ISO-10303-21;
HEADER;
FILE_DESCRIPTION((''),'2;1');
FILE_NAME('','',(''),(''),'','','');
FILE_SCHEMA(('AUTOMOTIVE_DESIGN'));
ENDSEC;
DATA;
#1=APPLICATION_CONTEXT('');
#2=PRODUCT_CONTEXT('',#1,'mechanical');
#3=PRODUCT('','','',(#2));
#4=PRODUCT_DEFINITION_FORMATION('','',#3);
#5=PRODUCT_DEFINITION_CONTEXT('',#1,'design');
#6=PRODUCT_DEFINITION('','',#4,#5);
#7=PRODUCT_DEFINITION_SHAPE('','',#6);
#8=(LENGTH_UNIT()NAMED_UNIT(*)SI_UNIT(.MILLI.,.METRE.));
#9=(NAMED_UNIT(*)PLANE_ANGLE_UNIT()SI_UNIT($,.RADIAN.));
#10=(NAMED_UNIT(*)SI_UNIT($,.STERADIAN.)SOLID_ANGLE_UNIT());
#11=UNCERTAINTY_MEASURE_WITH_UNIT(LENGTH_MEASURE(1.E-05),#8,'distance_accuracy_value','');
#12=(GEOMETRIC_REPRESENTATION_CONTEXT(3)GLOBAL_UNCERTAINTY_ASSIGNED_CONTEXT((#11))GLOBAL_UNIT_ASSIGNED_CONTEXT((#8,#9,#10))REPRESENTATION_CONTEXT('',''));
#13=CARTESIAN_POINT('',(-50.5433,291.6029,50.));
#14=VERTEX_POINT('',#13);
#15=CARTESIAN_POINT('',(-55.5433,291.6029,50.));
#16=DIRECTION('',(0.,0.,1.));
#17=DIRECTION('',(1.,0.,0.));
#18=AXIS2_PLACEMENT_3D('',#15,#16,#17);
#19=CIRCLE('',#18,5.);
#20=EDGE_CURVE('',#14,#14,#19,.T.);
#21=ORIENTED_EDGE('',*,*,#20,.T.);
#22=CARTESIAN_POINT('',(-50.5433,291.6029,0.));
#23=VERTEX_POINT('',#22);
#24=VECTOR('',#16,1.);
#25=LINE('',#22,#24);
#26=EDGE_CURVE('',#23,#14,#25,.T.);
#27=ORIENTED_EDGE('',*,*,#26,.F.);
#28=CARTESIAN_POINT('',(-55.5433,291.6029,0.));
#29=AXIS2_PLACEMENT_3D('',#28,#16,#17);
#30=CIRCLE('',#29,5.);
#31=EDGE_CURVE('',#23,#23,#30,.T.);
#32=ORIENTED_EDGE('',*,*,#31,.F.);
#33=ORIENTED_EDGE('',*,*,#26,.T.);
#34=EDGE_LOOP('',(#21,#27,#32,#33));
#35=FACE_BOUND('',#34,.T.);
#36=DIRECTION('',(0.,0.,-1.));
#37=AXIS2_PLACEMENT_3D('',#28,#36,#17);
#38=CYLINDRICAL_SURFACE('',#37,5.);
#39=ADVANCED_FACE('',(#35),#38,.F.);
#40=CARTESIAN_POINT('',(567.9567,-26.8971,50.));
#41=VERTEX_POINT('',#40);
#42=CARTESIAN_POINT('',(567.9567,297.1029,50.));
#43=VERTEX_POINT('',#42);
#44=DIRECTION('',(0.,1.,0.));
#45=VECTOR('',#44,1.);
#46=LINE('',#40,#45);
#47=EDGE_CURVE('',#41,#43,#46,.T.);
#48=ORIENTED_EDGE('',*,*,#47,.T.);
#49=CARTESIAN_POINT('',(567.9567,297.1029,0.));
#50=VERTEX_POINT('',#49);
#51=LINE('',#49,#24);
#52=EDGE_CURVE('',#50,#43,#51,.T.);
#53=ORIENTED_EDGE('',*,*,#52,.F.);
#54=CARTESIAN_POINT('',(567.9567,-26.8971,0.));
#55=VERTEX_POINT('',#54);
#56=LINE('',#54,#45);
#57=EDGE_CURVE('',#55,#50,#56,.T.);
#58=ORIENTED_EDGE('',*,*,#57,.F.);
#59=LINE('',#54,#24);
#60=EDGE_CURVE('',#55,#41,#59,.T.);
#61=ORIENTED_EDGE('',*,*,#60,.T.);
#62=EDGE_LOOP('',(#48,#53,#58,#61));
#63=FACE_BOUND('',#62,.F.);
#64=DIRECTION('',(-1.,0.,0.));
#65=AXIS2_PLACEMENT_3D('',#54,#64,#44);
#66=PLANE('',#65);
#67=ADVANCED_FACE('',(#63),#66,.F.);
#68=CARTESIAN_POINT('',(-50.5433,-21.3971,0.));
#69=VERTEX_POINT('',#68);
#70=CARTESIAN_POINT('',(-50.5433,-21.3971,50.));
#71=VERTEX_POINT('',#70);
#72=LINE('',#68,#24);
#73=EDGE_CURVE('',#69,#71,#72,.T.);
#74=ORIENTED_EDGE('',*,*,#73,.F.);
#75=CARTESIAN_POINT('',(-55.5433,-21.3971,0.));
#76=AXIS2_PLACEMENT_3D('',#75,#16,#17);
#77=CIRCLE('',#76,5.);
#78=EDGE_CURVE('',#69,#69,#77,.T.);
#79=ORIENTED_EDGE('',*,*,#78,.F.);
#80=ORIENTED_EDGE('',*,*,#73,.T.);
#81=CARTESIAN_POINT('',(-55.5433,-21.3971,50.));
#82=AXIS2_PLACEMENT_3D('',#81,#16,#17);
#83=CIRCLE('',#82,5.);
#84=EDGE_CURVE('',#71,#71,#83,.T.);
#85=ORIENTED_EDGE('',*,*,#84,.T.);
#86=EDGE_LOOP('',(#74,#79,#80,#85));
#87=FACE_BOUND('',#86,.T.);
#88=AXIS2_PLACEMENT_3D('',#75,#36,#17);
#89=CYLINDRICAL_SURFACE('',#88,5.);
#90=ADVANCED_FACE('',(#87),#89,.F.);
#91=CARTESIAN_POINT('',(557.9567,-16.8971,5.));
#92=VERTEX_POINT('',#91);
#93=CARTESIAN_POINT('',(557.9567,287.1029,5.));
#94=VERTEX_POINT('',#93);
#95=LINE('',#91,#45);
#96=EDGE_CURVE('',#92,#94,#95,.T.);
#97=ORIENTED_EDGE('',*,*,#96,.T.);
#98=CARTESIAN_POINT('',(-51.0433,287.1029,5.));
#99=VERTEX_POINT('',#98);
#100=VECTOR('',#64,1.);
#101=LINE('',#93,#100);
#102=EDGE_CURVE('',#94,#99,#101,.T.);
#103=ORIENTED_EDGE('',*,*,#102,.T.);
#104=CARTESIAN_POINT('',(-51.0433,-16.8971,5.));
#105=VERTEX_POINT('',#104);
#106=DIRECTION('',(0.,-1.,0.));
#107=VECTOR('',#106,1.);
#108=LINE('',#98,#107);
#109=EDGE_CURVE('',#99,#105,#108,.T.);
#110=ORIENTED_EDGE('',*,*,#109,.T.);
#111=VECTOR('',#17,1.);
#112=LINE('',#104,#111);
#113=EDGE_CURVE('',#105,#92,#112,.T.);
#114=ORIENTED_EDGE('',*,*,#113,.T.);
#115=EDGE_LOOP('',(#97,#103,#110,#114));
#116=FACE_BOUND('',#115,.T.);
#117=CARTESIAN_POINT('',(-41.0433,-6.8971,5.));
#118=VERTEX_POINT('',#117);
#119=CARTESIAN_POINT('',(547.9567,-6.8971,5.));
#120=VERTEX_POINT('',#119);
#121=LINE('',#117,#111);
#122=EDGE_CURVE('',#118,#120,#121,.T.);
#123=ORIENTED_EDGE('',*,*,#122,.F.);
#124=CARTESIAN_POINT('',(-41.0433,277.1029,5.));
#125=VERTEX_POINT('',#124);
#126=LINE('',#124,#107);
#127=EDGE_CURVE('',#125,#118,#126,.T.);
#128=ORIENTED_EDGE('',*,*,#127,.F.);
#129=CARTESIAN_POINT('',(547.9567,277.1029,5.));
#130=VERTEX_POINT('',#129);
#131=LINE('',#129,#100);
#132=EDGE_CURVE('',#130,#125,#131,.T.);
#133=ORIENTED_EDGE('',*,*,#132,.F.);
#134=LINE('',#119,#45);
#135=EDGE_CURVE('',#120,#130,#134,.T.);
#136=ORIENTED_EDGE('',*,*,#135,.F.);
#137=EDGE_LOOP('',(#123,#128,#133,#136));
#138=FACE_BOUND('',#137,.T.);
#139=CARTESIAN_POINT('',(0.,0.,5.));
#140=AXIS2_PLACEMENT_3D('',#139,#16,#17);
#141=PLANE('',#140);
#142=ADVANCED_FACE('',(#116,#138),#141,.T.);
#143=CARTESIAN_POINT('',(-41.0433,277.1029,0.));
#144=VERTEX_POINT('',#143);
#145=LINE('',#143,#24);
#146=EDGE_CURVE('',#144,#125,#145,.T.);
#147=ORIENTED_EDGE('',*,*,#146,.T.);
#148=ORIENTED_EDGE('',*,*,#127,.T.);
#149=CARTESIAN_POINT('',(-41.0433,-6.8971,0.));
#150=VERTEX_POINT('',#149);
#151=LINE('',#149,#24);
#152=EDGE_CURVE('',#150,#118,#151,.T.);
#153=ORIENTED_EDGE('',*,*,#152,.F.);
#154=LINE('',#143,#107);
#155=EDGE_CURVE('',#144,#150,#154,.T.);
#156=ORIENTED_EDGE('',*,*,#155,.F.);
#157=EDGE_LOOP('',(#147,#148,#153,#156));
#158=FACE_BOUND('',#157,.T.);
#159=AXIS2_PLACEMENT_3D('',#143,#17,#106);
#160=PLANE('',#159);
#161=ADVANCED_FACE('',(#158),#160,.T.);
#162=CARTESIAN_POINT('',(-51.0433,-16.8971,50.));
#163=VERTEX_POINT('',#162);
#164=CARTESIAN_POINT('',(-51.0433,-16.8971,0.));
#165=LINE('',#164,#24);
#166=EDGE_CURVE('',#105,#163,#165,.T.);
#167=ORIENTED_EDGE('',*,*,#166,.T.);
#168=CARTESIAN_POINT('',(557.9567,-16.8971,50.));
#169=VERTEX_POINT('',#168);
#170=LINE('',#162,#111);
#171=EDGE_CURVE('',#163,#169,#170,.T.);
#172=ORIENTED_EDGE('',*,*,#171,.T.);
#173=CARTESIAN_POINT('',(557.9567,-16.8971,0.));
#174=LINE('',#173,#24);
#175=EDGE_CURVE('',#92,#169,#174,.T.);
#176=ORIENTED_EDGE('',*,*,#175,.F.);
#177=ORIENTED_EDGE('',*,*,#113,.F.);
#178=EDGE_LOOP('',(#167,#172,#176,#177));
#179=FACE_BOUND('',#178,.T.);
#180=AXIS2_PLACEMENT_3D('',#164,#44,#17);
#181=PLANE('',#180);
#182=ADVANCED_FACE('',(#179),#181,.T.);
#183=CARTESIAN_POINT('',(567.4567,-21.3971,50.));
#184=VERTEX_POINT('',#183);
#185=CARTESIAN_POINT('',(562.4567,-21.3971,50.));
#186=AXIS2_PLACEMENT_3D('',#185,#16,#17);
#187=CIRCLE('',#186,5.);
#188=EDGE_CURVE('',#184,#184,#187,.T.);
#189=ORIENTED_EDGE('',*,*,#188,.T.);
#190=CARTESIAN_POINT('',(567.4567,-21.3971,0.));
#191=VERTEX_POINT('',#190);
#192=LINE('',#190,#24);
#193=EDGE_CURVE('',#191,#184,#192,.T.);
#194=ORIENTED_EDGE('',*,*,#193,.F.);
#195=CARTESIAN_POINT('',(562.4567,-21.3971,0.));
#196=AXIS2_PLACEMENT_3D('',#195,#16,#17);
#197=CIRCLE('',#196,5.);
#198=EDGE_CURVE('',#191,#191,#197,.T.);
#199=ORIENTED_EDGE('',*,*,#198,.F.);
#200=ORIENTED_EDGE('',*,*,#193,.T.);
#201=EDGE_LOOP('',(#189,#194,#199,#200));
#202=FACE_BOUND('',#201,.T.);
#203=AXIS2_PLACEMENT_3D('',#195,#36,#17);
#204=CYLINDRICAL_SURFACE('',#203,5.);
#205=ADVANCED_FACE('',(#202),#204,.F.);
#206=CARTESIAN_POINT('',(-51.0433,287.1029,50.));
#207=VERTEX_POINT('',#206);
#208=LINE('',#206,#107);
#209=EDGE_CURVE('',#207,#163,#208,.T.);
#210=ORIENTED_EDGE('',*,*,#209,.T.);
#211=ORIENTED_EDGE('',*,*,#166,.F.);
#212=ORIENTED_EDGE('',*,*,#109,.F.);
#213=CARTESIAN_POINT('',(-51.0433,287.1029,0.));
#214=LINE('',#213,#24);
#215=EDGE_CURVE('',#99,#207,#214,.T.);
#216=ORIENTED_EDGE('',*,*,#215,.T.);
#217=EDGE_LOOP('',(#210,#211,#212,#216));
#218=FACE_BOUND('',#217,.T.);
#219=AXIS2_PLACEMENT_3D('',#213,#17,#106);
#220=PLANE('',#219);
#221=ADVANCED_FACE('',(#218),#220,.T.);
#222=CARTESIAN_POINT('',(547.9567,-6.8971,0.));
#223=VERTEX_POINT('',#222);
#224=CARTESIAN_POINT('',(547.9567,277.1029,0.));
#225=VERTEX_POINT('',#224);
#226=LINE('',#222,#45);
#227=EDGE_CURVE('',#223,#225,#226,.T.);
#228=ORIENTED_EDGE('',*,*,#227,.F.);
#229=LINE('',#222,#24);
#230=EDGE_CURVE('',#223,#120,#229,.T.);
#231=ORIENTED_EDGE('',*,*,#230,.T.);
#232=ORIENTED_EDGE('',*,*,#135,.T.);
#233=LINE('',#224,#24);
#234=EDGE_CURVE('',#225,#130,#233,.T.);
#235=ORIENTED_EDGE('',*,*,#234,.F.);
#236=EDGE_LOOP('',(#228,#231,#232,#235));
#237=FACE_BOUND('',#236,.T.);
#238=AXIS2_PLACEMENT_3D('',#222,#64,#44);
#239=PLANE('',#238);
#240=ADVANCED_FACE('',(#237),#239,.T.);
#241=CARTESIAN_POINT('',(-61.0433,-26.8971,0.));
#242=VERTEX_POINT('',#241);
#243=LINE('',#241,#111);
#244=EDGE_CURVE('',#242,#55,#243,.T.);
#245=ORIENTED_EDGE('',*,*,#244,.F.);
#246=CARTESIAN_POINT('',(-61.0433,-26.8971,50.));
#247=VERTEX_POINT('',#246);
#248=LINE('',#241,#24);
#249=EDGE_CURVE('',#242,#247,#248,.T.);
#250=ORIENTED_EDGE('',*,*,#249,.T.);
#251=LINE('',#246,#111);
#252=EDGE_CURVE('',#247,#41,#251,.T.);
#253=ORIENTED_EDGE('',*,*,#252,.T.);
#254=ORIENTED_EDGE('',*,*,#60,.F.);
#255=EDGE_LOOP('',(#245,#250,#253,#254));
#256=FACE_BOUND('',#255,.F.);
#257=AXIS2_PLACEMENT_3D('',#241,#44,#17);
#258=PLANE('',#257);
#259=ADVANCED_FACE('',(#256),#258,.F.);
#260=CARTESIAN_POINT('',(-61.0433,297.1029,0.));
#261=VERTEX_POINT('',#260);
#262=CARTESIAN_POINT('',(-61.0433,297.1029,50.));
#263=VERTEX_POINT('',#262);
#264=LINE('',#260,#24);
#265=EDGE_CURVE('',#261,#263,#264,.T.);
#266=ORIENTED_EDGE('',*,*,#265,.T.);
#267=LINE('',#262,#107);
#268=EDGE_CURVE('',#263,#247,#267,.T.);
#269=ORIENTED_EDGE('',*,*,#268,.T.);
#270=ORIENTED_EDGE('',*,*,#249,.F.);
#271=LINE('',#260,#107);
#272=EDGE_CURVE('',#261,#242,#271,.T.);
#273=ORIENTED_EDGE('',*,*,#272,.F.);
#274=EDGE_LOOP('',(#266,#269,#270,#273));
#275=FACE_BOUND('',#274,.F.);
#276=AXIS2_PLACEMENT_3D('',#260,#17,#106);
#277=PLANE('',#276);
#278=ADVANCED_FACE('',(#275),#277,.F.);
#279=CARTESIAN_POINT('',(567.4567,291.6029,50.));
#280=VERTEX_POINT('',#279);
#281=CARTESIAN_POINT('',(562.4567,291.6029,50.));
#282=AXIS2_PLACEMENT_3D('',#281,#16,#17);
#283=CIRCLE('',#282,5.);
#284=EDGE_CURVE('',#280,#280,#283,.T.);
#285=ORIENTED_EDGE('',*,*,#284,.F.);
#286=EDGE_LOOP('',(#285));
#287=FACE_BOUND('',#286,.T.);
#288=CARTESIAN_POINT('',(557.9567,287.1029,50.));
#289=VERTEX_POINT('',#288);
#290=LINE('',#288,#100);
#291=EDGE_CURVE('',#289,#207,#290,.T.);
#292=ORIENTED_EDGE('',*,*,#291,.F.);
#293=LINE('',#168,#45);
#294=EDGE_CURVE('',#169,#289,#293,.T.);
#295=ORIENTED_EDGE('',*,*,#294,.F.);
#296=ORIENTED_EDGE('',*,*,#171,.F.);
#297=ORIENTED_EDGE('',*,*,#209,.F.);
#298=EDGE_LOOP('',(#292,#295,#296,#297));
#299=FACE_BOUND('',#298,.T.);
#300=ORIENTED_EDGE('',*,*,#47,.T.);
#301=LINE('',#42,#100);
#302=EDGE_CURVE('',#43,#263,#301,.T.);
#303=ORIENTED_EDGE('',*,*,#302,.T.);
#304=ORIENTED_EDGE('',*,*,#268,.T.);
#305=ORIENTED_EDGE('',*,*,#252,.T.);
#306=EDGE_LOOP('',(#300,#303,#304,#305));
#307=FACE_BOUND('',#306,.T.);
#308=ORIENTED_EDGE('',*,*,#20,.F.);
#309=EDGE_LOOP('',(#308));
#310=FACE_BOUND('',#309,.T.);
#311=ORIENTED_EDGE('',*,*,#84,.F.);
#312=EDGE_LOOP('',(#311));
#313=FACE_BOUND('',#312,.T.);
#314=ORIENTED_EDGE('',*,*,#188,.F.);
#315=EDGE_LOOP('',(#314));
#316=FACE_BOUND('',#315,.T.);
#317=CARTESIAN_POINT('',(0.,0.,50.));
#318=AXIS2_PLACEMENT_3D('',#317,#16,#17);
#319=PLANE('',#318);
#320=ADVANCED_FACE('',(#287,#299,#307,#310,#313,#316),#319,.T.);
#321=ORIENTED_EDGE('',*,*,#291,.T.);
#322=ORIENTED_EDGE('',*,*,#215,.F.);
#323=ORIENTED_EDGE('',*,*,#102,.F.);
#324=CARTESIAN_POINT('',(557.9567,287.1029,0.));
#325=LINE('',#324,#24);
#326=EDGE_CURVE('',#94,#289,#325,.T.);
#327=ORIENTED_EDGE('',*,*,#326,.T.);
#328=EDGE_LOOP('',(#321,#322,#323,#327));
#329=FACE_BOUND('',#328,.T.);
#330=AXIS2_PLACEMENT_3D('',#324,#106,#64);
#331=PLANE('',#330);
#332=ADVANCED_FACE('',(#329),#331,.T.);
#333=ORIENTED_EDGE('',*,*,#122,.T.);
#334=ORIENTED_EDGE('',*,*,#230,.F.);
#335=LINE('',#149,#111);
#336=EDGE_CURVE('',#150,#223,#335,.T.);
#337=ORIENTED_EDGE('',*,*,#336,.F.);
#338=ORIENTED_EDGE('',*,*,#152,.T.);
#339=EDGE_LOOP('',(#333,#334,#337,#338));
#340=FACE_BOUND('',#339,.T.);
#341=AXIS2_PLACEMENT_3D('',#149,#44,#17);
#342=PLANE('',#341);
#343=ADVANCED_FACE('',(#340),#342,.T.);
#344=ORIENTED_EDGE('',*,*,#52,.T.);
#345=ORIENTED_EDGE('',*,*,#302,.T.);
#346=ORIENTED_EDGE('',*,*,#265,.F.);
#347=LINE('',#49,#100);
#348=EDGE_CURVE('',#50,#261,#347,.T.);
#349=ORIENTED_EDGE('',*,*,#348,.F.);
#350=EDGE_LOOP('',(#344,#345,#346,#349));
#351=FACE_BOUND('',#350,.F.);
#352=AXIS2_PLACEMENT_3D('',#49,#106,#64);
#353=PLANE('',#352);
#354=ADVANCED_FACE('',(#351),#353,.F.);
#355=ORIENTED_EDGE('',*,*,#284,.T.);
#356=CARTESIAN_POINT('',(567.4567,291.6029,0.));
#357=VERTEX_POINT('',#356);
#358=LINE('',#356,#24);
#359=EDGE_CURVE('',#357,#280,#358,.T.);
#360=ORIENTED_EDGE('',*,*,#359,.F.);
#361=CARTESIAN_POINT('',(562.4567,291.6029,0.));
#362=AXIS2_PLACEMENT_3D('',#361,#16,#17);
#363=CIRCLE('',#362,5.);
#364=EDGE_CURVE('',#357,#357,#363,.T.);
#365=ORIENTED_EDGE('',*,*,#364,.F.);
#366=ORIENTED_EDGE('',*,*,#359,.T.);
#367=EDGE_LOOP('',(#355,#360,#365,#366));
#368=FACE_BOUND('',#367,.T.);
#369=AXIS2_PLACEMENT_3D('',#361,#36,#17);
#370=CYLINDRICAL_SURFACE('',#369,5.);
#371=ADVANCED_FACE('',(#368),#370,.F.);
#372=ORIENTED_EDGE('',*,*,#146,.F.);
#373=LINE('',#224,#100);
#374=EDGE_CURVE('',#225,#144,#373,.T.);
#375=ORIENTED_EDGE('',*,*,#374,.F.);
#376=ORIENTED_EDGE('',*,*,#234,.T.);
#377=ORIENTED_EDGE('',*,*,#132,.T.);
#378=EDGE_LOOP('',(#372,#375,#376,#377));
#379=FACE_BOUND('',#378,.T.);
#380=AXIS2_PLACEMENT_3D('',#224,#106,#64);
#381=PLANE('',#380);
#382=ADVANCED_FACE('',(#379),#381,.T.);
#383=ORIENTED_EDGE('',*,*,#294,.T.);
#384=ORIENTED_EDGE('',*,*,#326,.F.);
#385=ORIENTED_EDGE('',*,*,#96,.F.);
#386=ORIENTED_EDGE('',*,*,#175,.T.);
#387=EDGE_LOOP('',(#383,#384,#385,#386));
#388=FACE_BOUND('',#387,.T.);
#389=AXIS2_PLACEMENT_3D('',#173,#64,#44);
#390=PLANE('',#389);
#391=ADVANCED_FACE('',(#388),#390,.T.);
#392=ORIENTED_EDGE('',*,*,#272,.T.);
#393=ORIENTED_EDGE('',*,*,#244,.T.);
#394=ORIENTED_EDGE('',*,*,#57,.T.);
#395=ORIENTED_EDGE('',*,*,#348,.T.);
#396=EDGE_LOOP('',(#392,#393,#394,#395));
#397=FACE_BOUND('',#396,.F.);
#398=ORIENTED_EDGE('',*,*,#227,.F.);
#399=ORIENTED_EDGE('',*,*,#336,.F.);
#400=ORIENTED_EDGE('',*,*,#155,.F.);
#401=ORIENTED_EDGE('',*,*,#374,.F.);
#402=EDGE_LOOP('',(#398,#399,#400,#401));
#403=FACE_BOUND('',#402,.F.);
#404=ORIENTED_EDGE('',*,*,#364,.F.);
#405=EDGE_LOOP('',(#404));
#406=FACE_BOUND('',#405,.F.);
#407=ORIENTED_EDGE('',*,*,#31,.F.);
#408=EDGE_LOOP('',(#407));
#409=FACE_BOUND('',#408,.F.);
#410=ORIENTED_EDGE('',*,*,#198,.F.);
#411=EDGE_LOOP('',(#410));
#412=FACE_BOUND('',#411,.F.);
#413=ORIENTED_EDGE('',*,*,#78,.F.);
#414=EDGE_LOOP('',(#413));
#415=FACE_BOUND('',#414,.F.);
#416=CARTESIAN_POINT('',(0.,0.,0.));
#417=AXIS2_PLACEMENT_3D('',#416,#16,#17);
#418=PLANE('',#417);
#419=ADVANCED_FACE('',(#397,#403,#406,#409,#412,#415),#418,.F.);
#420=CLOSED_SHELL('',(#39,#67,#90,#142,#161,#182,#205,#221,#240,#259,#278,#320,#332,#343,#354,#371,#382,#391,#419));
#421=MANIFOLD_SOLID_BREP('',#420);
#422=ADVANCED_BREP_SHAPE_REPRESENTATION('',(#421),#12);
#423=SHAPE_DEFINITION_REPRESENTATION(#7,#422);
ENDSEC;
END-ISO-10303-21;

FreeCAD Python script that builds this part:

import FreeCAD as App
import Part
import Sketcher
from FreeCAD import Vector
Q = App.Units.Quantity


def add_polygon(sketch, points):
    """Adds a closed chain of lines whose ends are joined by coincident constraints."""
    first, n = sketch.GeometryCount, len(points)
    for a, b in zip(points, points[1:] + points[:1]):
        sketch.addGeometry(Part.LineSegment(App.Vector(*a, 0), App.Vector(*b, 0)), False)
    for i in range(n):
        sketch.addConstraint(Sketcher.Constraint("Coincident", first + i, 2, first + (i + 1) % n, 1))

doc = App.newDocument("Part")
body = doc.addObject("PartDesign::Body", "Body")

# Sketch on XY plane
sketch1 = body.newObject("Sketcher::SketchObject", "Sketch")
sketch1.AttachmentSupport = (doc.getObject("XY_Plane"), [""])
sketch1.MapMode = "FlatFace"
add_polygon(sketch1, [(-51.0433, 287.1029), (-51.0433, -16.8971), (557.9567, -16.8971), (557.9567, 287.1029)])  # lines 0-3
add_polygon(sketch1, [(547.9567, -6.8971), (-41.0433, -6.8971), (-41.0433, 277.1029), (547.9567, 277.1029)])  # lines 4-7
sketch1.addConstraint(Sketcher.Constraint("Vertical", 0))
sketch1.addConstraint(Sketcher.Constraint("Horizontal", 1))
sketch1.addConstraint(Sketcher.Constraint("Vertical", 2))
sketch1.addConstraint(Sketcher.Constraint("Horizontal", 3))
sketch1.addConstraint(Sketcher.Constraint("Horizontal", 4))
sketch1.addConstraint(Sketcher.Constraint("Vertical", 5))
sketch1.addConstraint(Sketcher.Constraint("Horizontal", 6))
sketch1.addConstraint(Sketcher.Constraint("Vertical", 7))
sketch1.addConstraint(Sketcher.Constraint("DistanceX", 1, 1, 1, 2, Q("609 mm")))
sketch1.addConstraint(Sketcher.Constraint("DistanceY", 0, 2, 0, 1, Q("304 mm")))
sketch1.addConstraint(Sketcher.Constraint("DistanceX", 0, 2, 4, 2, Q("10 mm")))
sketch1.addConstraint(Sketcher.Constraint("DistanceY", 0, 2, 4, 2, Q("10 mm")))
sketch1.addConstraint(Sketcher.Constraint("DistanceY", 5, 2, 3, 2, Q("10 mm")))
sketch1.addConstraint(Sketcher.Constraint("DistanceX", 6, 2, 2, 2, Q("10 mm")))
sketch1.addConstraint(Sketcher.Constraint("DistanceY", 0, 2, -1, 1, Q("16.897 mm")))
sketch1.addConstraint(Sketcher.Constraint("DistanceX", 0, 2, -1, 1, Q("51.0433 mm")))
pad1 = body.newObject("PartDesign::Pad", "Pad")
pad1.Profile = sketch1
pad1.Length = 5

# Sketch on XY plane
sketch2 = body.newObject("Sketcher::SketchObject", "Sketch001")
sketch2.AttachmentSupport = (doc.getObject("XY_Plane"), [""])
sketch2.MapMode = "FlatFace"
add_polygon(sketch2, [(-61.0433, 297.1029), (-61.0433, -26.8971), (567.9567, -26.8971), (567.9567, 297.1029)])  # lines 0-3
sketch2.addGeometry(Part.Circle(Vector(-55.5433, -21.3971, 0), Vector(0, 0, 1), 5), False)  # 4
sketch2.addGeometry(Part.Circle(Vector(562.4567, -21.3971, 0), Vector(0, 0, 1), 5), False)  # 5
sketch2.addGeometry(Part.Circle(Vector(-55.5433, 291.6029, 0), Vector(0, 0, 1), 5), False)  # 6
add_polygon(sketch2, [(557.9567, -16.8971), (-51.0433, -16.8971), (-51.0433, 287.1029), (557.9567, 287.1029)])  # lines 7-10
sketch2.addGeometry(Part.Circle(Vector(562.4567, 291.6029, 0), Vector(0, 0, 1), 5), False)  # 11
sketch2.addConstraint(Sketcher.Constraint("Vertical", 0))
sketch2.addConstraint(Sketcher.Constraint("Horizontal", 1))
sketch2.addConstraint(Sketcher.Constraint("Vertical", 2))
sketch2.addConstraint(Sketcher.Constraint("Horizontal", 3))
sketch2.addConstraint(Sketcher.Constraint("Horizontal", 7))
sketch2.addConstraint(Sketcher.Constraint("Vertical", 8))
sketch2.addConstraint(Sketcher.Constraint("Horizontal", 9))
sketch2.addConstraint(Sketcher.Constraint("Vertical", 10))
sketch2.addConstraint(Sketcher.Constraint("Equal", 4, 5))
sketch2.addConstraint(Sketcher.Constraint("Equal", 5, 6))
sketch2.addConstraint(Sketcher.Constraint("Equal", 6, 11))
sketch2.addConstraint(Sketcher.Constraint("Horizontal", 4, 3, 5, 3))
sketch2.addConstraint(Sketcher.Constraint("Horizontal", 6, 3, 11, 3))
sketch2.addConstraint(Sketcher.Constraint("Vertical", 4, 3, 6, 3))
sketch2.addConstraint(Sketcher.Constraint("Vertical", 5, 3, 11, 3))
sketch2.addConstraint(Sketcher.Constraint("Diameter", 4, Q("10 mm")))
sketch2.addConstraint(Sketcher.Constraint("DistanceX", 7, 2, 7, 1, Q("609 mm")))
sketch2.addConstraint(Sketcher.Constraint("DistanceY", 8, 1, 8, 2, Q("304 mm")))
sketch2.addConstraint(Sketcher.Constraint("DistanceX", 0, 2, 7, 2, Q("10 mm")))
sketch2.addConstraint(Sketcher.Constraint("DistanceY", 0, 2, 7, 2, Q("10 mm")))
sketch2.addConstraint(Sketcher.Constraint("DistanceY", 8, 2, 3, 2, Q("10 mm")))
sketch2.addConstraint(Sketcher.Constraint("DistanceX", 9, 2, 2, 2, Q("10 mm")))
sketch2.addConstraint(Sketcher.Constraint("DistanceX", 0, 2, 4, 3, Q("5.5 mm")))
sketch2.addConstraint(Sketcher.Constraint("DistanceY", 0, 2, 4, 3, Q("5.5 mm")))
sketch2.addConstraint(Sketcher.Constraint("DistanceX", 5, 3, 1, 2, Q("5.5 mm")))
sketch2.addConstraint(Sketcher.Constraint("DistanceY", 11, 3, 2, 2, Q("5.5 mm")))
sketch2.addConstraint(Sketcher.Constraint("DistanceY", 4, 3, -1, 1, Q("21.397 mm")))
sketch2.addConstraint(Sketcher.Constraint("DistanceX", 4, 3, -1, 1, Q("55.5433 mm")))
pad2 = body.newObject("PartDesign::Pad", "Pad001")
pad2.Profile = sketch2
pad2.Length = 50

doc.recompute()
